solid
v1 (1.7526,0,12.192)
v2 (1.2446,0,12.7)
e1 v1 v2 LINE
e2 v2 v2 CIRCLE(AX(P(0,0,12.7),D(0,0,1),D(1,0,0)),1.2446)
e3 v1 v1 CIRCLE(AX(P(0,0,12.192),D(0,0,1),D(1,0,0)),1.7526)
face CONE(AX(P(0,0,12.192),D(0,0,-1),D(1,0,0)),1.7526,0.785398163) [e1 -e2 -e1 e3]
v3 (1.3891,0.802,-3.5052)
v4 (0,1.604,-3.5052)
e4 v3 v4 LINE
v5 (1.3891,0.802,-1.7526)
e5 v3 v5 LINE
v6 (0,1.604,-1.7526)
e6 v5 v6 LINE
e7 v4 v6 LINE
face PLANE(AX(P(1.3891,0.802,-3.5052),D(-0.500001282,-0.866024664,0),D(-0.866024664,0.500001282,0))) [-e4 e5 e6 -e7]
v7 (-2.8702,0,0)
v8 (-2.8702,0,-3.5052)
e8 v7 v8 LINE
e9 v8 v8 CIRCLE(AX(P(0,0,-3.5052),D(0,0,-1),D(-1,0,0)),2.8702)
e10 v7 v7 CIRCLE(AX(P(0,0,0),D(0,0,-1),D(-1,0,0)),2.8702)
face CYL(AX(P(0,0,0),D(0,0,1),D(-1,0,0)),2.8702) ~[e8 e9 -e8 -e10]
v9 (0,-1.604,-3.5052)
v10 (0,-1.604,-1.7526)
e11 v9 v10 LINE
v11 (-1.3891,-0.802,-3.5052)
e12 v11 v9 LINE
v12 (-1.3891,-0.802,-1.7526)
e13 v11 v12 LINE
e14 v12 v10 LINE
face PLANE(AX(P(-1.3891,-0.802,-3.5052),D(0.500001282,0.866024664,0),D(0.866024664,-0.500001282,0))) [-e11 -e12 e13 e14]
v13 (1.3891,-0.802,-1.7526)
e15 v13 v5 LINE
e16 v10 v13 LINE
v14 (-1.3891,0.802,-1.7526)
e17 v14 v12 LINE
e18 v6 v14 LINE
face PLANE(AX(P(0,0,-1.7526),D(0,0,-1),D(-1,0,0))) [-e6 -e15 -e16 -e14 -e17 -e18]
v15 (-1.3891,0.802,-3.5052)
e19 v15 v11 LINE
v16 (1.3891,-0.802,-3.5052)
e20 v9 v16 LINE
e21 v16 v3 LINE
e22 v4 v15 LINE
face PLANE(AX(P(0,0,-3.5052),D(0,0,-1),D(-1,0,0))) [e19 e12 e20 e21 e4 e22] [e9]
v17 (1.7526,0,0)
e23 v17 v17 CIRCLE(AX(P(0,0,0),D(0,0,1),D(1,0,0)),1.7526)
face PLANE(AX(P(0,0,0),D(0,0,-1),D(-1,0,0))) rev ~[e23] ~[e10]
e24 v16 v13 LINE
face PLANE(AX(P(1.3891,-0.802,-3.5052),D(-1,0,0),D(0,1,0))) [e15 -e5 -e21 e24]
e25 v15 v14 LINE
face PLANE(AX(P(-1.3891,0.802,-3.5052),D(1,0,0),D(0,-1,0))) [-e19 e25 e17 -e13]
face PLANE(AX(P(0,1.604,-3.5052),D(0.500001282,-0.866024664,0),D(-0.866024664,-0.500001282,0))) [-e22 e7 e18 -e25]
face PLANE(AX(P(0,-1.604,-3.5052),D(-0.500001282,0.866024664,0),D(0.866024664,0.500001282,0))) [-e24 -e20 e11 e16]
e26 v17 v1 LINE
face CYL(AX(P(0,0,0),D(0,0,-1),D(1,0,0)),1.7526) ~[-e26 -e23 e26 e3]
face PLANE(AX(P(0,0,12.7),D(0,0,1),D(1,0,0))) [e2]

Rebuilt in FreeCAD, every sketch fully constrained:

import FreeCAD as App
import Part
import Sketcher
from FreeCAD import Vector
Q = App.Units.Quantity


def edges_at(feature, points):
    """Names of the edges that pass closest to the given points."""
    edges = feature.Shape.Edges
    near = lambda p: min(range(len(edges)), key=lambda i: edges[i].distToShape(Part.Vertex(*p))[0])
    return sorted({f"Edge{near(p) + 1}" for p in points})

doc = App.newDocument("Part")
body = doc.addObject("PartDesign::Body", "Body")

sketch1 = body.newObject("Sketcher::SketchObject", "Sketch")
sketch1.AttachmentSupport = (doc.getObject("XY_Plane"), [""])
sketch1.MapMode = "FlatFace"
sketch1.addGeometry(Part.Circle(Vector(0, 0, 0), Vector(0, 0, 1), 1.8), False)
sketch1.addConstraint([
    Sketcher.Constraint("Coincident", 0, 3, -1, 1),
    Sketcher.Constraint("Diameter", 0, Q("0.138 in")),
])
pad1 = body.newObject("PartDesign::Pad", "Pad")
pad1.Profile = sketch1
pad1.Length = Q("0.5 in")

sketch2 = body.newObject("Sketcher::SketchObject", "Sketch001")
sketch2.AttachmentSupport = (doc.getObject("XY_Plane"), [""])
sketch2.MapMode = "FlatFace"
sketch2.addGeometry(Part.Circle(Vector(0, 0, 0), Vector(0, 0, 1), 2.9), False)
sketch2.addConstraint([
    Sketcher.Constraint("Coincident", 0, 3, -1, 1),
    Sketcher.Constraint("Diameter", 0, Q("0.226 in")),
])
pad2 = body.newObject("PartDesign::Pad", "Pad001")
pad2.Profile = sketch2
pad2.Length = Q("0.138 in")
pad2.Reversed = True

sketch3 = body.newObject("Sketcher::SketchObject", "Sketch002")
sketch3.AttachmentSupport = (doc.getObject("XY_Plane"), [""])
sketch3.MapMode = "FlatFace"
sketch3.AttachmentOffset = App.Placement(Vector(0, 0, -0.138 * 25.4), App.Rotation())
sketch3.addGeometry([
    Part.LineSegment(Vector(-1.4, 0.8, 0), Vector(0, 1.6, 0)),
    Part.LineSegment(Vector(0, 1.6, 0), Vector(1.4, 0.8, 0)),
    Part.LineSegment(Vector(1.4, 0.8, 0), Vector(1.4, -0.8, 0)),
    Part.LineSegment(Vector(1.4, -0.8, 0), Vector(0, -1.6, 0)),
    Part.LineSegment(Vector(0, -1.6, 0), Vector(-1.4, -0.8, 0)),
    Part.LineSegment(Vector(-1.4, -0.8, 0), Vector(-1.4, 0.8, 0)),
], False)
sketch3.addConstraint([
    Sketcher.Constraint("Coincident", 0, 2, 1, 1),
    Sketcher.Constraint("Coincident", 1, 2, 2, 1),
    Sketcher.Constraint("Coincident", 2, 2, 3, 1),
    Sketcher.Constraint("Coincident", 3, 2, 4, 1),
    Sketcher.Constraint("Coincident", 4, 2, 5, 1),
    Sketcher.Constraint("Coincident", 5, 2, 0, 1),
    Sketcher.Constraint("Vertical", 2),
    Sketcher.Constraint("Vertical", 5),
    Sketcher.Constraint("Symmetric", 0, 2, 3, 2, -1, 1),
    Sketcher.Constraint("Symmetric", 1, 2, 4, 2, -1, 1),
    Sketcher.Constraint("PointOnObject", 0, 2, -2),
    Sketcher.Constraint("Parallel", 0, 3),
    Sketcher.Constraint("Horizontal", 2, 2, 4, 2),
    Sketcher.Constraint("Angle", 0, Q("30 deg")),
    Sketcher.Constraint("DistanceX", 4, 2, 2, 2, Q("0.109378 in")),
    Sketcher.Constraint("DistanceY", 2, 2, 2, 1, Q("1.604 mm")),
])
pocket1 = body.newObject("PartDesign::Pocket", "Pocket")
pocket1.Profile = sketch3
pocket1.Length = Q("0.069 in")
pocket1.Reversed = True
doc.recompute()

chamfer = body.newObject("PartDesign::Chamfer", "Chamfer")
chamfer.Base = (pocket1, edges_at(pocket1, [(-1.753, 0, 12.7)]))
chamfer.Size = Q("0.02 in")

doc.recompute()
